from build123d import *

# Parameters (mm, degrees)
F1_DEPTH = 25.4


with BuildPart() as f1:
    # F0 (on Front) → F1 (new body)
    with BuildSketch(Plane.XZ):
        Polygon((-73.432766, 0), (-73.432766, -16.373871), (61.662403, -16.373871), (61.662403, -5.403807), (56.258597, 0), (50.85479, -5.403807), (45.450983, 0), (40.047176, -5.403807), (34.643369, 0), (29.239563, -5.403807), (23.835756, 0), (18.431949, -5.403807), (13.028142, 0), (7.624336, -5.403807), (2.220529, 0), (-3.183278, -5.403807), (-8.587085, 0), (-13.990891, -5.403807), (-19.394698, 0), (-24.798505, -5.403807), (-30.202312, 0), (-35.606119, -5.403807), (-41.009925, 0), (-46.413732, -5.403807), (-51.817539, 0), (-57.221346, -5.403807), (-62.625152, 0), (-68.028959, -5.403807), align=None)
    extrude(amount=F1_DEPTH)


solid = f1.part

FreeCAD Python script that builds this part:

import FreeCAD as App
import Part
import Sketcher
Q = App.Units.Quantity

doc = App.newDocument("Part")
body = doc.addObject("PartDesign::Body", "Body")

# Sketch on XZ plane
sketch1 = body.newObject("Sketcher::SketchObject", "Sketch")
sketch1.AttachmentSupport = (doc.getObject("XZ_Plane"), [""])
sketch1.MapMode = "FlatFace"
sketch1.addGeometry([
    Part.LineSegment(App.Vector(-73, 0, 0), App.Vector(-73, -16, 0)),  # 0
    Part.LineSegment(App.Vector(-73, -16, 0), App.Vector(62, -16, 0)),  # 1
    Part.LineSegment(App.Vector(62, -16, 0), App.Vector(62, -5, 0)),  # 2
    Part.LineSegment(App.Vector(62, -5, 0), App.Vector(56, 0, 0)),  # 3
    Part.LineSegment(App.Vector(56, 0, 0), App.Vector(51, -5, 0)),  # 4
    Part.LineSegment(App.Vector(51, -5, 0), App.Vector(45, 0, 0)),  # 5
    Part.LineSegment(App.Vector(45, 0, 0), App.Vector(40, -5, 0)),  # 6
    Part.LineSegment(App.Vector(40, -5, 0), App.Vector(35, 0, 0)),  # 7
    Part.LineSegment(App.Vector(35, 0, 0), App.Vector(29, -5, 0)),  # 8
    Part.LineSegment(App.Vector(29, -5, 0), App.Vector(24, 0, 0)),  # 9
    Part.LineSegment(App.Vector(24, 0, 0), App.Vector(18, -5, 0)),  # 10
    Part.LineSegment(App.Vector(18, -5, 0), App.Vector(13, 0, 0)),  # 11
    Part.LineSegment(App.Vector(13, 0, 0), App.Vector(8, -5, 0)),  # 12
    Part.LineSegment(App.Vector(8, -5, 0), App.Vector(2, 0, 0)),  # 13
    Part.LineSegment(App.Vector(2, 0, 0), App.Vector(-3, -5, 0)),  # 14
    Part.LineSegment(App.Vector(-3, -5, 0), App.Vector(-9, 0, 0)),  # 15
    Part.LineSegment(App.Vector(-9, 0, 0), App.Vector(-14, -5, 0)),  # 16
    Part.LineSegment(App.Vector(-14, -5, 0), App.Vector(-19, 0, 0)),  # 17
    Part.LineSegment(App.Vector(-19, 0, 0), App.Vector(-25, -5, 0)),  # 18
    Part.LineSegment(App.Vector(-25, -5, 0), App.Vector(-30, 0, 0)),  # 19
    Part.LineSegment(App.Vector(-30, 0, 0), App.Vector(-36, -5, 0)),  # 20
    Part.LineSegment(App.Vector(-36, -5, 0), App.Vector(-41, 0, 0)),  # 21
    Part.LineSegment(App.Vector(-41, 0, 0), App.Vector(-46, -5, 0)),  # 22
    Part.LineSegment(App.Vector(-46, -5, 0), App.Vector(-52, 0, 0)),  # 23
    Part.LineSegment(App.Vector(-52, 0, 0), App.Vector(-57, -5, 0)),  # 24
    Part.LineSegment(App.Vector(-57, -5, 0), App.Vector(-63, 0, 0)),  # 25
    Part.LineSegment(App.Vector(-63, 0, 0), App.Vector(-68, -5, 0)),  # 26
    Part.LineSegment(App.Vector(-68, -5, 0), App.Vector(-73, 0, 0)),  # 27
], False)
sketch1.addConstraint([
    Sketcher.Constraint("Coincident", 0, 2, 1, 1),
    Sketcher.Constraint("Coincident", 1, 2, 2, 1),
    Sketcher.Constraint("Coincident", 2, 2, 3, 1),
    Sketcher.Constraint("Coincident", 3, 2, 4, 1),
    Sketcher.Constraint("Coincident", 4, 2, 5, 1),
    Sketcher.Constraint("Coincident", 5, 2, 6, 1),
    Sketcher.Constraint("Coincident", 6, 2, 7, 1),
    Sketcher.Constraint("Coincident", 7, 2, 8, 1),
    Sketcher.Constraint("Coincident", 8, 2, 9, 1),
    Sketcher.Constraint("Coincident", 9, 2, 10, 1),
    Sketcher.Constraint("Coincident", 10, 2, 11, 1),
    Sketcher.Constraint("Coincident", 11, 2, 12, 1),
    Sketcher.Constraint("Coincident", 12, 2, 13, 1),
    Sketcher.Constraint("Coincident", 13, 2, 14, 1),
    Sketcher.Constraint("Coincident", 14, 2, 15, 1),
    Sketcher.Constraint("Coincident", 15, 2, 16, 1),
    Sketcher.Constraint("Coincident", 16, 2, 17, 1),
    Sketcher.Constraint("Coincident", 17, 2, 18, 1),
    Sketcher.Constraint("Coincident", 18, 2, 19, 1),
    Sketcher.Constraint("Coincident", 19, 2, 20, 1),
    Sketcher.Constraint("Coincident", 20, 2, 21, 1),
    Sketcher.Constraint("Coincident", 21, 2, 22, 1),
    Sketcher.Constraint("Coincident", 22, 2, 23, 1),
    Sketcher.Constraint("Coincident", 23, 2, 24, 1),
    Sketcher.Constraint("Coincident", 24, 2, 25, 1),
    Sketcher.Constraint("Coincident", 25, 2, 26, 1),
    Sketcher.Constraint("Coincident", 26, 2, 27, 1),
    Sketcher.Constraint("Coincident", 27, 2, 0, 1),
    Sketcher.Constraint("Vertical", 0),
    Sketcher.Constraint("Horizontal", 1),
    Sketcher.Constraint("Vertical", 2),
    Sketcher.Constraint("PointOnObject", 3, 2, -1),
    Sketcher.Constraint("PointOnObject", 5, 2, -1),
    Sketcher.Constraint("PointOnObject", 7, 2, -1),
    Sketcher.Constraint("PointOnObject", 9, 2, -1),
    Sketcher.Constraint("PointOnObject", 11, 2, -1),
    Sketcher.Constraint("PointOnObject", 13, 2, -1),
    Sketcher.Constraint("PointOnObject", 15, 2, -1),
    Sketcher.Constraint("PointOnObject", 17, 2, -1),
    Sketcher.Constraint("PointOnObject", 19, 2, -1),
    Sketcher.Constraint("PointOnObject", 21, 2, -1),
    Sketcher.Constraint("PointOnObject", 23, 2, -1),
    Sketcher.Constraint("PointOnObject", 25, 2, -1),
    Sketcher.Constraint("PointOnObject", 27, 2, -1),
    Sketcher.Constraint("Perpendicular", 3, 4),
    Sketcher.Constraint("Perpendicular", 4, 5),
    Sketcher.Constraint("Perpendicular", 5, 6),
    Sketcher.Constraint("Perpendicular", 6, 7),
    Sketcher.Constraint("Perpendicular", 7, 8),
    Sketcher.Constraint("Perpendicular", 8, 9),
    Sketcher.Constraint("Perpendicular", 9, 10),
    Sketcher.Constraint("Perpendicular", 10, 11),
    Sketcher.Constraint("Perpendicular", 11, 12),
    Sketcher.Constraint("Perpendicular", 12, 13),
    Sketcher.Constraint("Perpendicular", 13, 14),
    Sketcher.Constraint("Perpendicular", 14, 15),
    Sketcher.Constraint("Perpendicular", 15, 16),
    Sketcher.Constraint("Perpendicular", 16, 17),
    Sketcher.Constraint("Perpendicular", 17, 18),
    Sketcher.Constraint("Perpendicular", 18, 19),
    Sketcher.Constraint("Perpendicular", 19, 20),
    Sketcher.Constraint("Perpendicular", 20, 21),
    Sketcher.Constraint("Perpendicular", 21, 22),
    Sketcher.Constraint("Perpendicular", 22, 23),
    Sketcher.Constraint("Perpendicular", 23, 24),
    Sketcher.Constraint("Perpendicular", 24, 25),
    Sketcher.Constraint("Perpendicular", 25, 26),
    Sketcher.Constraint("Perpendicular", 26, 27),
    Sketcher.Constraint("Horizontal", 2, 2, 4, 2),
    Sketcher.Constraint("Horizontal", 4, 2, 6, 2),
    Sketcher.Constraint("Horizontal", 6, 2, 8, 2),
    Sketcher.Constraint("Horizontal", 8, 2, 10, 2),
    Sketcher.Constraint("Horizontal", 10, 2, 12, 2),
    Sketcher.Constraint("Horizontal", 12, 2, 14, 2),
    Sketcher.Constraint("Horizontal", 14, 2, 16, 2),
    Sketcher.Constraint("Horizontal", 16, 2, 18, 2),
    Sketcher.Constraint("Horizontal", 18, 2, 20, 2),
    Sketcher.Constraint("Horizontal", 20, 2, 22, 2),
    Sketcher.Constraint("Horizontal", 22, 2, 24, 2),
    Sketcher.Constraint("Horizontal", 24, 2, 26, 2),
    Sketcher.Constraint("Equal", 3, 4),
    Sketcher.Constraint("DistanceX", 1, 1, 1, 2, Q("135.095169 mm")),
    Sketcher.Constraint("DistanceY", 0, 2, 0, 1, Q("16.373871 mm")),
    Sketcher.Constraint("DistanceX", 17, 2, -1, 1, Q("19.394698 mm")),
])
pad1 = body.newObject("PartDesign::Pad", "Pad")
pad1.Profile = sketch1
pad1.Length = Q("1 in")

doc.recompute()
